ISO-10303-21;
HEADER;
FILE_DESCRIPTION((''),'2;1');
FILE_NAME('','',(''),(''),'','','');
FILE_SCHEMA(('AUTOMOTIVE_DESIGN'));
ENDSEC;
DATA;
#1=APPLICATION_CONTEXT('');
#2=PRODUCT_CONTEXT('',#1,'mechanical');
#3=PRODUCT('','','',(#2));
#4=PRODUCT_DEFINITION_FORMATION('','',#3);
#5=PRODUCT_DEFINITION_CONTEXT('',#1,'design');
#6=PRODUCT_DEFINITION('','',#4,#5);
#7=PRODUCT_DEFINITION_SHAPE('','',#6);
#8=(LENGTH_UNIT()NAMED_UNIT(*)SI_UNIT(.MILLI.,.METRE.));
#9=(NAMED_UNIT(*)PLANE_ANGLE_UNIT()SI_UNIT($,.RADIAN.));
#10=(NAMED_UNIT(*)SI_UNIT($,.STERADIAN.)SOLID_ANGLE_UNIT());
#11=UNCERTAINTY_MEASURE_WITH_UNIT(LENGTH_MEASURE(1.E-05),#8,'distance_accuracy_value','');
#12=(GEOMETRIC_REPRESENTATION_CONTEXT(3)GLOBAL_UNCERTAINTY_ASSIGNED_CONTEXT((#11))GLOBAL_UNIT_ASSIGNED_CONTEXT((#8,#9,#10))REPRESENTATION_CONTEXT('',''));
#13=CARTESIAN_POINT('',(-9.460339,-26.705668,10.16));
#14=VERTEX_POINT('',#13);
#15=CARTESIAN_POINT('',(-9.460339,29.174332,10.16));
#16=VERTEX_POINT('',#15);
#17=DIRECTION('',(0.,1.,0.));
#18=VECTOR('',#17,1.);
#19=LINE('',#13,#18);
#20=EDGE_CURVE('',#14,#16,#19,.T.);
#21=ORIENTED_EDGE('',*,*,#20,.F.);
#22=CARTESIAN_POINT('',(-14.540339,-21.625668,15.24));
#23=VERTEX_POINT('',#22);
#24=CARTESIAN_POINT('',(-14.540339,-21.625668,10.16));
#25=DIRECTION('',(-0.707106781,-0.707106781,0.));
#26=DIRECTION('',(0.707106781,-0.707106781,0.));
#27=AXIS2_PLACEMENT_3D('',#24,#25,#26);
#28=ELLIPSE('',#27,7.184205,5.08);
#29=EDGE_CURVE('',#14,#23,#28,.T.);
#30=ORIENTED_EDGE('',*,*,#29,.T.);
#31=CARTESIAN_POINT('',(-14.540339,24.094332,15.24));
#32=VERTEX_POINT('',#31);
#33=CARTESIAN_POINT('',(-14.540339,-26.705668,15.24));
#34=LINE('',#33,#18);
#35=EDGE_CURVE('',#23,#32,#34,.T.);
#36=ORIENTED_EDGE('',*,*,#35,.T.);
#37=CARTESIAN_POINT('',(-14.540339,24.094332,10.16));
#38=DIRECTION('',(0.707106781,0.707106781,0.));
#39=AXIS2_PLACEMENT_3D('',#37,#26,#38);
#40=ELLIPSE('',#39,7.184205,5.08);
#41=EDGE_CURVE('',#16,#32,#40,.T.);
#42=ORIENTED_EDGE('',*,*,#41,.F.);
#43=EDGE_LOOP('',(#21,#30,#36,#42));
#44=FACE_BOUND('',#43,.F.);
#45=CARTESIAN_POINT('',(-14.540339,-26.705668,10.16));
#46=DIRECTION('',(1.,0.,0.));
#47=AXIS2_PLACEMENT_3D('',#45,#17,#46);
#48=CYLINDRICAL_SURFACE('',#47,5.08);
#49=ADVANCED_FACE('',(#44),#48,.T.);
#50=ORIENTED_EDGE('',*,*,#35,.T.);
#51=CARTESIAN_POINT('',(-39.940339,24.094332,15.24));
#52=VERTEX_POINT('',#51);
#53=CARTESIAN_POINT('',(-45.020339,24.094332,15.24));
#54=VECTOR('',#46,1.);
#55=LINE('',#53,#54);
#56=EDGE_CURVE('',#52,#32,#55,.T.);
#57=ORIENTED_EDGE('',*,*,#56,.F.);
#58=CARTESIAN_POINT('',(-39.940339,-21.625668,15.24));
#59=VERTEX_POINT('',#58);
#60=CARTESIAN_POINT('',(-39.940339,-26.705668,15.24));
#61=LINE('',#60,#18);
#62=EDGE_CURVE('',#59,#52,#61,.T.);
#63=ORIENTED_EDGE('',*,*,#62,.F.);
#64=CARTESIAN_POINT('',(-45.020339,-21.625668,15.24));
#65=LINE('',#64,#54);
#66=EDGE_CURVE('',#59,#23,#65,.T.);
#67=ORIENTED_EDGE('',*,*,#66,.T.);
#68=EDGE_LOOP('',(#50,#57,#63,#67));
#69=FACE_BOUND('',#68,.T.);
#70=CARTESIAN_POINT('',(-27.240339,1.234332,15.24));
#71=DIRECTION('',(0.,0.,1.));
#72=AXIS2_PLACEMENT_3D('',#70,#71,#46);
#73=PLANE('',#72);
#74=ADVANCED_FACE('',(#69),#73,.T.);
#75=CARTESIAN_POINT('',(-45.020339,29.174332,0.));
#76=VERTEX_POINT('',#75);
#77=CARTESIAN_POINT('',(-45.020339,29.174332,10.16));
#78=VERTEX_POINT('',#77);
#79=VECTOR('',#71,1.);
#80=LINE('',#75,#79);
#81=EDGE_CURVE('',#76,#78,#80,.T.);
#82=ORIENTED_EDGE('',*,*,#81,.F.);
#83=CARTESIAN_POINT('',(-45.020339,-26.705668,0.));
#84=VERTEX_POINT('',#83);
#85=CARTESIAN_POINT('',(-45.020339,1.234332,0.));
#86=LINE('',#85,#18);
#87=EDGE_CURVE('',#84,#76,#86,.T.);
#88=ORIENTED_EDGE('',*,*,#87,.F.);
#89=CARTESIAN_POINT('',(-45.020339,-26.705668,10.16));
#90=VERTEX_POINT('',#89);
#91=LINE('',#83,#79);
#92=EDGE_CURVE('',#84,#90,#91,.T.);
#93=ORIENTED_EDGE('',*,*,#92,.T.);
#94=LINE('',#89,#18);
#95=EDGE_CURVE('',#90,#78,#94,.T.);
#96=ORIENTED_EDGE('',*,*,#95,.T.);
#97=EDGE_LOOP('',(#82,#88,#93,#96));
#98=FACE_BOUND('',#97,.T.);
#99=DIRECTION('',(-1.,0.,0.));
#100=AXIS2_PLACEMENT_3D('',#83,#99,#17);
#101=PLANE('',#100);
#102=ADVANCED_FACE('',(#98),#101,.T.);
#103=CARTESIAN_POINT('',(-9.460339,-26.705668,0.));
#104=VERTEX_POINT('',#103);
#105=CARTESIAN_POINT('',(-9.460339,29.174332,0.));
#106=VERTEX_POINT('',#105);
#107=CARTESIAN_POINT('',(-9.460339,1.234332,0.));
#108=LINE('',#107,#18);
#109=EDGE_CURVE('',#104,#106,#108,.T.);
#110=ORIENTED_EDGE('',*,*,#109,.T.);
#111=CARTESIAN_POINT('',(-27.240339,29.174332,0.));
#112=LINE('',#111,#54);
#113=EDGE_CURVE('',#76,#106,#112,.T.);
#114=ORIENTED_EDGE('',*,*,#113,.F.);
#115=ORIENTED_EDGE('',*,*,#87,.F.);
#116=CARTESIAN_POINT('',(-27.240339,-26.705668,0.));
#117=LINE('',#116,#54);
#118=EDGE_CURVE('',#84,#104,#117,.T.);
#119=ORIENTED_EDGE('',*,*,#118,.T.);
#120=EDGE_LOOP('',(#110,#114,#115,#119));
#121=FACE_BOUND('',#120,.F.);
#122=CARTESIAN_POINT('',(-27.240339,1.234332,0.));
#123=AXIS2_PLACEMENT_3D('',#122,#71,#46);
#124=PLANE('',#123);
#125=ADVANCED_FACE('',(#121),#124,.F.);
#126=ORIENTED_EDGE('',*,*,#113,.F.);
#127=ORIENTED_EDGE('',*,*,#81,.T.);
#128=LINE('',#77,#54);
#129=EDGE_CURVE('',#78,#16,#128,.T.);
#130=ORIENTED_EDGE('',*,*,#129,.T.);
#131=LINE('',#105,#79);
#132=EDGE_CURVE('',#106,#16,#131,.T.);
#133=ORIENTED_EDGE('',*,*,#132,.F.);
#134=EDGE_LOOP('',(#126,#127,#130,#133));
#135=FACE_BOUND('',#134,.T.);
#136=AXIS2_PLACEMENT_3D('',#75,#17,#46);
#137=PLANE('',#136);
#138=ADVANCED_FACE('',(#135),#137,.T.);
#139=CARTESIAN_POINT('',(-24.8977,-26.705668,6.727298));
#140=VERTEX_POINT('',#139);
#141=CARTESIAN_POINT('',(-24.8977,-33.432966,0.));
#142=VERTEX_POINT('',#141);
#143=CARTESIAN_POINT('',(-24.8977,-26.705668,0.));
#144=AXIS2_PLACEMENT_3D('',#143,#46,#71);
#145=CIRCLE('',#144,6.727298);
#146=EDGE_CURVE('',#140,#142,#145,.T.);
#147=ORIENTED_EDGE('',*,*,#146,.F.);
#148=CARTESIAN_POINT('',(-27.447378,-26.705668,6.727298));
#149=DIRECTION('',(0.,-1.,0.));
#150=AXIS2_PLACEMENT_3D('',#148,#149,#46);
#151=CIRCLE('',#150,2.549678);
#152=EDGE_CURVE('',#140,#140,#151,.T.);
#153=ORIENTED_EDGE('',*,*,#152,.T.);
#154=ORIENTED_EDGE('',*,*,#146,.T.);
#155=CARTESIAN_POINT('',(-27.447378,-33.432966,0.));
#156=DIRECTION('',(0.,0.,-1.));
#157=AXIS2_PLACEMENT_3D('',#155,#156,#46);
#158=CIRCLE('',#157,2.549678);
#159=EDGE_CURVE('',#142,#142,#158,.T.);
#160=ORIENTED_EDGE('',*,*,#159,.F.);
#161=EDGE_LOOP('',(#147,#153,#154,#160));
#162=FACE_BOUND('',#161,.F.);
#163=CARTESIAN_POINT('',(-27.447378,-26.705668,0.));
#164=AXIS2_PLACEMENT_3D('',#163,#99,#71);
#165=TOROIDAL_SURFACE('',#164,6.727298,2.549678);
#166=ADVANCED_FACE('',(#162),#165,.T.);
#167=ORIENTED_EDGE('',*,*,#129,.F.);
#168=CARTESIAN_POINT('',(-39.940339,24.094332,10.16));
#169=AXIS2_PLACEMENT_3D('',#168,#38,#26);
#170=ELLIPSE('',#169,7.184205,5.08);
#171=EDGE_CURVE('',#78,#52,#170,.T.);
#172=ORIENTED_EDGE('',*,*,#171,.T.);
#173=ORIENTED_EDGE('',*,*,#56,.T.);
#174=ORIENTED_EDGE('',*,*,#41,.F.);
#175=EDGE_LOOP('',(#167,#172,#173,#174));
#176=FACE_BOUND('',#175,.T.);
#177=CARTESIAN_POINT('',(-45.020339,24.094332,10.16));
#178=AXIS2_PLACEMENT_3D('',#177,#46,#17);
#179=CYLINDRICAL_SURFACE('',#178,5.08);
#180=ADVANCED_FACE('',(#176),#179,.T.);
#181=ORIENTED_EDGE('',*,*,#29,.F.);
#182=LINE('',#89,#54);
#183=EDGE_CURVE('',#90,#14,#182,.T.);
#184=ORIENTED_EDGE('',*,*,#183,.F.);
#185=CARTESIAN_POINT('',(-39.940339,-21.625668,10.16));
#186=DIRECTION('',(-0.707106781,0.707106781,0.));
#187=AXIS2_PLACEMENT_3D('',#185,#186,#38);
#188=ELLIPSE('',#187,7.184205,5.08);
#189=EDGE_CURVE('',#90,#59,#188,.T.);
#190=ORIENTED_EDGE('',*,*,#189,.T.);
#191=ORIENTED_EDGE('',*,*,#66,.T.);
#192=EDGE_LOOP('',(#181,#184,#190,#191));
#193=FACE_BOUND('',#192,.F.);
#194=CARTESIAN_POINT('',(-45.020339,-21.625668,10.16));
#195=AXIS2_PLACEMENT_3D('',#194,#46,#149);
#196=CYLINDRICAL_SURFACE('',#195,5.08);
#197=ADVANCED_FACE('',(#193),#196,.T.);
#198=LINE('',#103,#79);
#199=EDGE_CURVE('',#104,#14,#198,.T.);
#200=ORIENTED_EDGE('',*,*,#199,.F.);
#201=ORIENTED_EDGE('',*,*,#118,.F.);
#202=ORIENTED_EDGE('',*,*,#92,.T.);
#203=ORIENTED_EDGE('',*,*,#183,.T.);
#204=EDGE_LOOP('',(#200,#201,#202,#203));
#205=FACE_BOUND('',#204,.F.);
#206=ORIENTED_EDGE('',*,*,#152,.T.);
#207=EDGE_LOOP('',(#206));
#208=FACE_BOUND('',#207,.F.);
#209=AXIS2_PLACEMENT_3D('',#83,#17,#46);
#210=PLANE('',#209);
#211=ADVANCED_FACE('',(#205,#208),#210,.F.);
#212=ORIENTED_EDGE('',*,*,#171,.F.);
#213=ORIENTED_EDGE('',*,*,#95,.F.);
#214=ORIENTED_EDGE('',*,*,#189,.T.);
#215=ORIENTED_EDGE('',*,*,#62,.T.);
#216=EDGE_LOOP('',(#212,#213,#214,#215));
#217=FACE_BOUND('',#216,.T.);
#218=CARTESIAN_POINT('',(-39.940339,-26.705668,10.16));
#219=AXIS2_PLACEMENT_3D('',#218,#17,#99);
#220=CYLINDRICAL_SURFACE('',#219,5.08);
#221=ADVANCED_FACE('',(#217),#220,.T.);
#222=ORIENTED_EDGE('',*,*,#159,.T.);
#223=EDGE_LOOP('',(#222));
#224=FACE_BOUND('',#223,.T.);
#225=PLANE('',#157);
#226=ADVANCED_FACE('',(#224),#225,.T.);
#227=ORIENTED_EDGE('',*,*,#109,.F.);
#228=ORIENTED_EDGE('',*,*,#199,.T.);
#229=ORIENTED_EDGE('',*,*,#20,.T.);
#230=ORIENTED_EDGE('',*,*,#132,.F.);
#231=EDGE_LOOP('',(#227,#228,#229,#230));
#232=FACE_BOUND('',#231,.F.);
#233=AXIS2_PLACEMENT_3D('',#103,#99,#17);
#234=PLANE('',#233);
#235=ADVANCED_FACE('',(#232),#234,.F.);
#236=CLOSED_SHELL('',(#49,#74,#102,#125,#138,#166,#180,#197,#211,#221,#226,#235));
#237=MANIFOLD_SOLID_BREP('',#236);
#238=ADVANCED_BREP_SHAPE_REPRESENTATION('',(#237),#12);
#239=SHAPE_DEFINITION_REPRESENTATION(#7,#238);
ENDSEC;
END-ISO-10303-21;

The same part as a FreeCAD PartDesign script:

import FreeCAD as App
import Part
import Sketcher
from FreeCAD import Vector
Q = App.Units.Quantity


def edges_at(feature, points):
    """Names of the edges that pass closest to the given points."""
    edges = feature.Shape.Edges
    near = lambda p: min(range(len(edges)), key=lambda i: edges[i].distToShape(Part.Vertex(*p))[0])
    return sorted({f"Edge{near(p) + 1}" for p in points})

doc = App.newDocument("Part")
params = doc.addObject("Spreadsheet::Sheet", "Params")
for row, (alias, value) in enumerate([
    ("sketch1_width", "1.4 in"),
    ("sketch1_height", "2.2 in"),
    ("pad1_length", "0.6 in"),
    ("fillet_radius", "0.2 in"),
    ("revolution_angle", "90 deg"),
], start=1):
    params.set(f"A{row}", alias)
    params.set(f"B{row}", "=" + value)
    params.setAlias(f"B{row}", alias)

body = doc.addObject("PartDesign::Body", "Body")

# Sketch on XY plane
sketch1 = body.newObject("Sketcher::SketchObject", "Sketch")
sketch1.AttachmentSupport = (doc.getObject("XY_Plane"), [""])
sketch1.MapMode = "FlatFace"
sketch1.addGeometry([
    Part.LineSegment(Vector(-45, 29, 0), Vector(-45, -27, 0)),
    Part.LineSegment(Vector(-45, -27, 0), Vector(-9, -27, 0)),
    Part.LineSegment(Vector(-9, -27, 0), Vector(-9, 29, 0)),
    Part.LineSegment(Vector(-9, 29, 0), Vector(-45, 29, 0)),
], False)
sketch1.addConstraint([
    Sketcher.Constraint("Coincident", 0, 2, 1, 1),
    Sketcher.Constraint("Coincident", 1, 2, 2, 1),
    Sketcher.Constraint("Coincident", 2, 2, 3, 1),
    Sketcher.Constraint("Coincident", 3, 2, 0, 1),
    Sketcher.Constraint("Vertical", 0),
    Sketcher.Constraint("Horizontal", 1),
    Sketcher.Constraint("Vertical", 2),
    Sketcher.Constraint("Horizontal", 3),
    Sketcher.Constraint("DistanceX", 1, 1, 1, 2, Q("1.4 in")),
    Sketcher.Constraint("DistanceY", 0, 2, 0, 1, Q("2.2 in")),
    Sketcher.Constraint("DistanceX", 0, 2, -1, 1, 45.020339),
    Sketcher.Constraint("DistanceY", -1, 1, 2, 2, 29.174332),
])
sketch1.setExpression("Constraints[8]", "Params.sketch1_width")
sketch1.setExpression("Constraints[9]", "Params.sketch1_height")
pad1 = body.newObject("PartDesign::Pad", "Pad")
pad1.Profile = sketch1
pad1.setExpression("Length", "Params.pad1_length")
doc.recompute()

fillet = body.newObject("PartDesign::Fillet", "Fillet")
fillet.Base = (pad1, edges_at(pad1, [
    (-27.24, 29.174, 15.24),
    (-45.02, 1.234, 15.24),
    (-27.24, -26.706, 15.24),
    (-9.46, 1.234, 15.24),
]))
fillet.setExpression("Radius", "Params.fillet_radius")

# Sketch on XZ plane
sketch2 = body.newObject("Sketcher::SketchObject", "Sketch001")
sketch2.AttachmentSupport = (doc.getObject("XZ_Plane"), [""])
sketch2.MapMode = "FlatFace"
sketch2.AttachmentOffset = App.Placement(Vector(0, 0, 26.705668), App.Rotation())
sketch2.addGeometry(Part.Circle(Vector(-27.4, 6.7, 0), Vector(0, 0, 1), 2.5), False)
sketch2.addConstraint([
    Sketcher.Constraint("Diameter", 0, 5.099356),
    Sketcher.Constraint("DistanceY", -1, 1, 0, 3, 6.727298),
    Sketcher.Constraint("DistanceX", 0, 3, -1, 1, 27.447378),
])
revolution = body.newObject("PartDesign::Revolution", "Revolution")
revolution.Profile = sketch2
revolution.ReferenceAxis = (sketch2, ["H_Axis"])
revolution.setExpression("Angle", "Params.revolution_angle")

doc.recompute()
